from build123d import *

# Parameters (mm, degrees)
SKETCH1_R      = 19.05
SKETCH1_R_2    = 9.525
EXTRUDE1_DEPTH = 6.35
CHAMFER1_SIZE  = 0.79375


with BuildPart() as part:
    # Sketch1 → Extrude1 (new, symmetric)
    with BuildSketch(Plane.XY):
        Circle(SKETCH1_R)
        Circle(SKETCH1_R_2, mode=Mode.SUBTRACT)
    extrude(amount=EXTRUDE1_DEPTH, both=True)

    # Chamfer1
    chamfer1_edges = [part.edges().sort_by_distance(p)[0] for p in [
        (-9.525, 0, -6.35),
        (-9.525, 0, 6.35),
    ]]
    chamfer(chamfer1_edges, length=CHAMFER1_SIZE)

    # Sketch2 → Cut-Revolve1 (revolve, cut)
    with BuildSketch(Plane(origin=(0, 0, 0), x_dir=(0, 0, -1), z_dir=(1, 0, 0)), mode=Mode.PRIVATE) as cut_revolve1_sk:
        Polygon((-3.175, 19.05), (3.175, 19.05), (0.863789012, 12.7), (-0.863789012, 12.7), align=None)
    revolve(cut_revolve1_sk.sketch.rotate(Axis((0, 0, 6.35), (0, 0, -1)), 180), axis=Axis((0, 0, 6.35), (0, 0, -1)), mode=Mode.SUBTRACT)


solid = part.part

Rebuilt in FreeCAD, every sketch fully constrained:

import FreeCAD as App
import Part
import Sketcher
Q = App.Units.Quantity


def edges_at(feature, points):
    """Names of the edges that pass closest to the given points."""
    edges = feature.Shape.Edges
    near = lambda p: min(range(len(edges)), key=lambda i: edges[i].distToShape(Part.Vertex(*p))[0])
    return sorted({f"Edge{near(p) + 1}" for p in points})

doc = App.newDocument("Part")
body = doc.addObject("PartDesign::Body", "Body")

# Sketch on XY plane
sketch1 = body.newObject("Sketcher::SketchObject", "Sketch")
sketch1.AttachmentSupport = (doc.getObject("XY_Plane"), [""])
sketch1.MapMode = "FlatFace"
sketch1.addGeometry(Part.Circle(App.Vector(0, 0, 0), App.Vector(0, 0, 1), 19), False)
sketch1.addGeometry(Part.Circle(App.Vector(0, 0, 0), App.Vector(0, 0, 1), 10), False)
sketch1.addConstraint(Sketcher.Constraint("Coincident", 0, 3, -1, 1))
sketch1.addConstraint(Sketcher.Constraint("Coincident", 1, 3, -1, 1))
sketch1.addConstraint(Sketcher.Constraint("Diameter", 0, Q("1.5 in")))
sketch1.addConstraint(Sketcher.Constraint("Diameter", 1, Q("0.75 in")))
pad1 = body.newObject("PartDesign::Pad", "Pad")
pad1.Profile = sketch1
pad1.Length = Q("0.5 in")
pad1.Midplane = True
doc.recompute()

chamfer = body.newObject("PartDesign::Chamfer", "Chamfer")
chamfer.Base = (pad1, edges_at(pad1, [(-9.525, 0, -6.35), (-9.525, 0, 6.35)]))
chamfer.Size = Q("0.03125 in")

# Sketch on YZ plane
sketch2 = body.newObject("Sketcher::SketchObject", "Sketch001")
sketch2.AttachmentSupport = (doc.getObject("YZ_Plane"), [""])
sketch2.MapMode = "FlatFace"
sketch2.addGeometry(Part.LineSegment(App.Vector(19.1, -3.2, 0), App.Vector(19.1, 3.2, 0)), False)
sketch2.addGeometry(Part.LineSegment(App.Vector(19.1, 3.2, 0), App.Vector(12.7, 0.9, 0)), False)
sketch2.addGeometry(Part.LineSegment(App.Vector(12.7, 0.9, 0), App.Vector(12.7, -0.9, 0)), False)
sketch2.addGeometry(Part.LineSegment(App.Vector(12.7, -0.9, 0), App.Vector(19.1, -3.2, 0)), False)
sketch2.addConstraint(Sketcher.Constraint("Coincident", 0, 2, 1, 1))
sketch2.addConstraint(Sketcher.Constraint("Coincident", 1, 2, 2, 1))
sketch2.addConstraint(Sketcher.Constraint("Coincident", 2, 2, 3, 1))
sketch2.addConstraint(Sketcher.Constraint("Coincident", 3, 2, 0, 1))
sketch2.addConstraint(Sketcher.Constraint("Vertical", 0))
sketch2.addConstraint(Sketcher.Constraint("Vertical", 2))
sketch2.addConstraint(Sketcher.Constraint("Equal", 1, 3))
sketch2.addConstraint(Sketcher.Constraint("Angle", 1, Q("-160 deg")))
sketch2.addConstraint(Sketcher.Constraint("DistanceY", 0, 1, 0, 2, Q("0.25 in")))
sketch2.addConstraint(Sketcher.Constraint("DistanceX", -1, 1, 1, 2, Q("0.5 in")))
sketch2.addConstraint(Sketcher.Constraint("DistanceX", -1, 1, 0, 2, Q("0.75 in")))
sketch2.addConstraint(Sketcher.Constraint("DistanceY", -1, 1, 0, 2, Q("0.125 in")))
groove = body.newObject("PartDesign::Groove", "Groove")
groove.Profile = sketch2
groove.ReferenceAxis = (sketch2, ["V_Axis"])
groove.Angle = 360

doc.recompute()
